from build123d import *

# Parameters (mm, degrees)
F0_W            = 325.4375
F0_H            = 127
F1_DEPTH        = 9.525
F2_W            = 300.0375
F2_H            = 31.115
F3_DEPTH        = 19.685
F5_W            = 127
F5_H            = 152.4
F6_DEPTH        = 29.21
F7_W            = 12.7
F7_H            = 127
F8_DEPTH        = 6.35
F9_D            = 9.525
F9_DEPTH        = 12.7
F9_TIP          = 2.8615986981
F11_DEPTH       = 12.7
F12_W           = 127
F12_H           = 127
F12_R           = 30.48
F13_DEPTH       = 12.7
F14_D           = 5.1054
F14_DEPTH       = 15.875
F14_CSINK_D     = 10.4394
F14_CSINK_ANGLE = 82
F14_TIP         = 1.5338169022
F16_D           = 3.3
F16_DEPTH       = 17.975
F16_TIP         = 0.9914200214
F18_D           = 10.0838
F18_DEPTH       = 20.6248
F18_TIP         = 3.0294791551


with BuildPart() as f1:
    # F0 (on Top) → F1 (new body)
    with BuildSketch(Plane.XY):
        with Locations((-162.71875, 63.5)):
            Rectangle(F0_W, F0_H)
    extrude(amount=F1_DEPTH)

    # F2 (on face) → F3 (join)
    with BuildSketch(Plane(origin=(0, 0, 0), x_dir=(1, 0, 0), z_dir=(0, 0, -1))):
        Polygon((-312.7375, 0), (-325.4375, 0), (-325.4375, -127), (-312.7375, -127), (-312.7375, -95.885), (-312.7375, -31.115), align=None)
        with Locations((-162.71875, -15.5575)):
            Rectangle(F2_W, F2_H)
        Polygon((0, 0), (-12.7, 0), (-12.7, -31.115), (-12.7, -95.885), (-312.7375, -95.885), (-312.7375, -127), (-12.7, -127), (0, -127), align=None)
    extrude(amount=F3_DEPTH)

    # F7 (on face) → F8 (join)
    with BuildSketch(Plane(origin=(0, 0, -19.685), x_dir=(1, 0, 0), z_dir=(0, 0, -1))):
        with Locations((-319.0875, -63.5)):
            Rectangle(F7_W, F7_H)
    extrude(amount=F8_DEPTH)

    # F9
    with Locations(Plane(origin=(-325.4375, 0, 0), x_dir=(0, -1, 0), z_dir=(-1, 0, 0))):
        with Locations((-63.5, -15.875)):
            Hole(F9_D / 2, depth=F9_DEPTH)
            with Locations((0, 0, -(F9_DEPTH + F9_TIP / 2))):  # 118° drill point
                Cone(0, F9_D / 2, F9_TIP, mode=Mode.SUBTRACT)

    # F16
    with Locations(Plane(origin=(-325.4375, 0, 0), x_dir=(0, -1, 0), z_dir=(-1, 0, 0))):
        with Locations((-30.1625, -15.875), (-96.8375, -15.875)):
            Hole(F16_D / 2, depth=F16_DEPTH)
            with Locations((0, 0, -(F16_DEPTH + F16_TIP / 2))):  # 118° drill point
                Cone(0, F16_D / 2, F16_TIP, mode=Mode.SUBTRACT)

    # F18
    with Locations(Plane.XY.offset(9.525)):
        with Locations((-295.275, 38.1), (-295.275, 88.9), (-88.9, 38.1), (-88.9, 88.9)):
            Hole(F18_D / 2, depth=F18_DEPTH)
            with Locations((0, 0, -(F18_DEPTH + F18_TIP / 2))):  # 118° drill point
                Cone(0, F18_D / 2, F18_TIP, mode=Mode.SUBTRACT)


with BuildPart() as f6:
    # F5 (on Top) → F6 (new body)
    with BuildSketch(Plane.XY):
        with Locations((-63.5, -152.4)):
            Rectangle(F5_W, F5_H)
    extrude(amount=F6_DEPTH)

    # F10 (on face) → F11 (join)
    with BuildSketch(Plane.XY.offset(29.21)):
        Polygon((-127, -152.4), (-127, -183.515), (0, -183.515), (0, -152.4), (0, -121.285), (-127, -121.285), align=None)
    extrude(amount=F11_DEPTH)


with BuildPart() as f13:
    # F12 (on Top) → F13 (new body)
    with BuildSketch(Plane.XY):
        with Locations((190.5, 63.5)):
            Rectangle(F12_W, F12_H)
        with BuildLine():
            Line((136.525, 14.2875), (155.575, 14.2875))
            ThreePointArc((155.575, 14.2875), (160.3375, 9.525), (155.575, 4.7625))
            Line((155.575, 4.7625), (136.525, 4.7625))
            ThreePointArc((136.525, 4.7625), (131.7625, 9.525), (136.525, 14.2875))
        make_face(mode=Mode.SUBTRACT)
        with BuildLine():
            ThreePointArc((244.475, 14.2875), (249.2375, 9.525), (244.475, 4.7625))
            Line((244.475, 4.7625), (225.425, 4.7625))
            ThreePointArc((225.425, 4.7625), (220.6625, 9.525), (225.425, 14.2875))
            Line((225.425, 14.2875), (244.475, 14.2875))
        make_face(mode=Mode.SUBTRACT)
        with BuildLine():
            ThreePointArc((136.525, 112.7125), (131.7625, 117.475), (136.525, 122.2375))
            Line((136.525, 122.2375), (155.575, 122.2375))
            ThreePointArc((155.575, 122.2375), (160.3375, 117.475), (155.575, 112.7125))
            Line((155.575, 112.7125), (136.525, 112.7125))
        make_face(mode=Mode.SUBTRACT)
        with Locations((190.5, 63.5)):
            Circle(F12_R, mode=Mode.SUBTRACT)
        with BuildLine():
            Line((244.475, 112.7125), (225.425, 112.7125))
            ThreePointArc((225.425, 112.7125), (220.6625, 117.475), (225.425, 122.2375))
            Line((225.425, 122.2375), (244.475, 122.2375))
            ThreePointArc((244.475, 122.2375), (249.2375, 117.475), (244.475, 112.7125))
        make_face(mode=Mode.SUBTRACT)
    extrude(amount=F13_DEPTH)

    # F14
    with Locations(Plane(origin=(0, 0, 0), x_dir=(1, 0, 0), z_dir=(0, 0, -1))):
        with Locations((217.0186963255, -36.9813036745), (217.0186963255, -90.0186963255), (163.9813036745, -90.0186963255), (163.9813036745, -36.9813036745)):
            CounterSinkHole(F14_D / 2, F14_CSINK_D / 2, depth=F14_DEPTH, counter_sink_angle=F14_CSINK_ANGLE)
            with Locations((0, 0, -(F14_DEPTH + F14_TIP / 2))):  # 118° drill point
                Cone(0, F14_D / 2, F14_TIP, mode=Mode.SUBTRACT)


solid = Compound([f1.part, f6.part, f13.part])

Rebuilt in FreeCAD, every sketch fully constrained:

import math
import FreeCAD as App
import Part
import Sketcher
from FreeCAD import Vector
Q = App.Units.Quantity


def add_polygon(sketch, points):
    """Adds a closed chain of lines whose ends are joined by coincident constraints."""
    first, n = sketch.GeometryCount, len(points)
    for a, b in zip(points, points[1:] + points[:1]):
        sketch.addGeometry(Part.LineSegment(App.Vector(*a, 0), App.Vector(*b, 0)), False)
    for i in range(n):
        sketch.addConstraint(Sketcher.Constraint("Coincident", first + i, 2, first + (i + 1) % n, 1))

doc = App.newDocument("Part")
body = doc.addObject("PartDesign::Body", "Body")

sketch1 = body.newObject("Sketcher::SketchObject", "Sketch")
sketch1.AttachmentSupport = (doc.getObject("XY_Plane"), [""])
sketch1.MapMode = "FlatFace"
add_polygon(sketch1, [(-325, 127), (-325, 0), (0, 0), (0, 127)])
sketch1.addConstraint([
    Sketcher.Constraint("Vertical", 0),
    Sketcher.Constraint("Horizontal", 1),
    Sketcher.Constraint("Vertical", 2),
    Sketcher.Constraint("Horizontal", 3),
    Sketcher.Constraint("Coincident", 1, 2, -1, 1),
    Sketcher.Constraint("DistanceY", 0, 2, 0, 1, Q("5 in")),
    Sketcher.Constraint("DistanceX", 1, 1, 1, 2, Q("12.8125 in")),
])
pad1 = body.newObject("PartDesign::Pad", "Pad")
pad1.Profile = sketch1
pad1.Length = Q("0.375 in")

sketch2 = body.newObject("Sketcher::SketchObject", "Sketch001")
sketch2.AttachmentSupport = (doc.getObject("XY_Plane"), [""])
sketch2.MapMode = "FlatFace"
add_polygon(sketch2, [(-325, 0), (-325, 127), (0, 127), (0, 0)])
add_polygon(sketch2, [(-313, 96), (-313, 31), (-13, 31), (-13, 96)])
sketch2.addConstraint([
    Sketcher.Constraint("Vertical", 0),
    Sketcher.Constraint("Horizontal", 1),
    Sketcher.Constraint("Vertical", 2),
    Sketcher.Constraint("Horizontal", 3),
    Sketcher.Constraint("Vertical", 4),
    Sketcher.Constraint("Horizontal", 5),
    Sketcher.Constraint("Vertical", 6),
    Sketcher.Constraint("Horizontal", 7),
    Sketcher.Constraint("Coincident", 2, 2, -1, 1),
    Sketcher.Constraint("DistanceY", 0, 1, 0, 2, Q("5 in")),
    Sketcher.Constraint("DistanceY", 4, 2, 4, 1, Q("2.55 in")),
    Sketcher.Constraint("DistanceX", 5, 2, -1, 1, Q("0.5 in")),
    Sketcher.Constraint("DistanceX", 3, 2, 4, 2, Q("0.5 in")),
    Sketcher.Constraint("DistanceX", 1, 1, 1, 2, Q("12.8125 in")),
    Sketcher.Constraint("DistanceY", -1, 1, 4, 2, Q("1.225 in")),
])
pad2 = body.newObject("PartDesign::Pad", "Pad001")
pad2.Profile = sketch2
pad2.Length = Q("0.775 in")
pad2.Reversed = True

sketch3 = body.newObject("Sketcher::SketchObject", "Sketch002")
sketch3.AttachmentSupport = (doc.getObject("XY_Plane"), [""])
sketch3.MapMode = "FlatFace"
sketch3.AttachmentOffset = App.Placement(Vector(0, 0, -0.775 * 25.4), App.Rotation())
add_polygon(sketch3, [(-325, 0), (-325, 127), (-313, 127), (-313, 0)])
sketch3.addConstraint([
    Sketcher.Constraint("Vertical", 0),
    Sketcher.Constraint("Horizontal", 1),
    Sketcher.Constraint("Vertical", 2),
    Sketcher.Constraint("Horizontal", 3),
    Sketcher.Constraint("PointOnObject", 2, 2, -1),
    Sketcher.Constraint("DistanceY", 0, 1, 0, 2, Q("5 in")),
    Sketcher.Constraint("DistanceX", 1, 1, 1, 2, Q("0.5 in")),
    Sketcher.Constraint("DistanceX", 0, 2, -1, 1, Q("12.8125 in")),
])
pad3 = body.newObject("PartDesign::Pad", "Pad002")
pad3.Profile = sketch3
pad3.Length = Q("0.25 in")
pad3.Reversed = True

sketch4 = body.newObject("Sketcher::SketchObject", "Sketch003")
sketch4.AttachmentSupport = (doc.getObject("YZ_Plane"), [""])
sketch4.MapMode = "FlatFace"
sketch4.AttachmentOffset = App.Placement(Vector(0, 0, -12.8125 * 25.4), App.Rotation())
sketch4.addGeometry(Part.Circle(Vector(63.5, -15.9, 0), Vector(0, 0, 1), 4.8), False)
sketch4.addConstraint([
    Sketcher.Constraint("Diameter", 0, Q("0.375 in")),
    Sketcher.Constraint("DistanceX", -1, 1, 0, 3, Q("2.5 in")),
    Sketcher.Constraint("DistanceY", 0, 3, -1, 1, Q("0.625 in")),
])
doc.recompute()
hole = body.newObject("PartDesign::Hole", "Hole")
hole.Profile = sketch4
hole.ThreadType = "None"
hole.Diameter = Q("0.375 in")
hole.DepthType = "Dimension"
hole.Depth = Q("0.5 in")
hole.DrillPoint = "Angled"
hole.DrillPointAngle = 118
hole.Reversed = True

sketch5 = body.newObject("Sketcher::SketchObject", "Sketch004")
sketch5.AttachmentSupport = (doc.getObject("YZ_Plane"), [""])
sketch5.MapMode = "FlatFace"
sketch5.AttachmentOffset = App.Placement(Vector(0, 0, -12.8125 * 25.4), App.Rotation())
sketch5.addGeometry([
    Part.Circle(Vector(30.2, -15.9, 0), Vector(0, 0, 1), 1.6),
    Part.Circle(Vector(96.8, -15.9, 0), Vector(0, 0, 1), 1.6),
], False)
sketch5.addConstraint([
    Sketcher.Constraint("Equal", 0, 1),
    Sketcher.Constraint("Horizontal", 0, 3, 1, 3),
    Sketcher.Constraint("Diameter", 0, Q("3.3 mm")),
    Sketcher.Constraint("DistanceX", -1, 1, 0, 3, Q("1.1875 in")),
    Sketcher.Constraint("DistanceY", 0, 3, -1, 1, Q("0.625 in")),
    Sketcher.Constraint("DistanceX", -1, 1, 1, 3, Q("3.8125 in")),
])
doc.recompute()
hole2 = body.newObject("PartDesign::Hole", "Hole001")
hole2.Profile = sketch5
hole2.ThreadType = "None"
hole2.Diameter = 3.3
hole2.DepthType = "Dimension"
hole2.Depth = 17.975
hole2.DrillPoint = "Angled"
hole2.DrillPointAngle = 118
hole2.Reversed = True

sketch6 = body.newObject("Sketcher::SketchObject", "Sketch005")
sketch6.AttachmentSupport = (doc.getObject("XY_Plane"), [""])
sketch6.MapMode = "FlatFace"
sketch6.AttachmentOffset = App.Placement(Vector(0, 0, 0.375 * 25.4), App.Rotation())
sketch6.addGeometry([
    Part.Circle(Vector(-295, 38, 0), Vector(0, 0, 1), 5),
    Part.Circle(Vector(-295, 89, 0), Vector(0, 0, 1), 5),
    Part.Circle(Vector(-89, 38, 0), Vector(0, 0, 1), 5),
    Part.Circle(Vector(-89, 89, 0), Vector(0, 0, 1), 5),
], False)
sketch6.addConstraint([
    Sketcher.Constraint("Equal", 0, 1),
    Sketcher.Constraint("Equal", 1, 2),
    Sketcher.Constraint("Equal", 2, 3),
    Sketcher.Constraint("Horizontal", 0, 3, 2, 3),
    Sketcher.Constraint("Horizontal", 1, 3, 3, 3),
    Sketcher.Constraint("Vertical", 0, 3, 1, 3),
    Sketcher.Constraint("Vertical", 2, 3, 3, 3),
    Sketcher.Constraint("Diameter", 0, Q("0.397 in")),
    Sketcher.Constraint("DistanceY", 0, 3, 1, 3, Q("2 in")),
    Sketcher.Constraint("DistanceY", -1, 1, 0, 3, Q("1.5 in")),
    Sketcher.Constraint("DistanceX", 2, 3, -1, 1, Q("3.5 in")),
    Sketcher.Constraint("DistanceX", 0, 3, -1, 1, Q("11.625 in")),
])
doc.recompute()
hole3 = body.newObject("PartDesign::Hole", "Hole002")
hole3.Profile = sketch6
hole3.ThreadType = "None"
hole3.Diameter = Q("0.397 in")
hole3.DepthType = "Dimension"
hole3.Depth = Q("0.812 in")
hole3.DrillPoint = "Angled"
hole3.DrillPointAngle = 118
body2 = doc.addObject("PartDesign::Body", "Body001")

sketch7 = body2.newObject("Sketcher::SketchObject", "Sketch006")
sketch7.AttachmentSupport = (doc.getObject("XY_Plane001"), [""])
sketch7.MapMode = "FlatFace"
add_polygon(sketch7, [(-127, -76), (-127, -229), (0, -229), (0, -76)])
sketch7.addConstraint([
    Sketcher.Constraint("Vertical", 0),
    Sketcher.Constraint("Horizontal", 1),
    Sketcher.Constraint("Vertical", 2),
    Sketcher.Constraint("Horizontal", 3),
    Sketcher.Constraint("PointOnObject", 1, 2, -2),
    Sketcher.Constraint("DistanceX", 1, 1, 1, 2, Q("5 in")),
    Sketcher.Constraint("DistanceY", 0, 2, 0, 1, Q("6 in")),
    Sketcher.Constraint("DistanceY", 0, 2, -1, 1, Q("9 in")),
])
pad4 = body2.newObject("PartDesign::Pad", "Pad003")
pad4.Profile = sketch7
pad4.Length = Q("1.15 in")

sketch8 = body2.newObject("Sketcher::SketchObject", "Sketch007")
sketch8.AttachmentSupport = (doc.getObject("XY_Plane001"), [""])
sketch8.MapMode = "FlatFace"
sketch8.AttachmentOffset = App.Placement(Vector(0, 0, 1.15 * 25.4), App.Rotation())
add_polygon(sketch8, [(-127, -184), (0, -184), (0, -121), (-127, -121)])
sketch8.addConstraint([
    Sketcher.Constraint("Horizontal", 0),
    Sketcher.Constraint("Vertical", 1),
    Sketcher.Constraint("Horizontal", 2),
    Sketcher.Constraint("Vertical", 3),
    Sketcher.Constraint("PointOnObject", 0, 2, -2),
    Sketcher.Constraint("DistanceX", 0, 1, 0, 2, Q("5 in")),
    Sketcher.Constraint("DistanceY", 1, 1, 1, 2, Q("2.45 in")),
    Sketcher.Constraint("DistanceY", 0, 2, -1, 1, Q("7.225 in")),
])
pad5 = body2.newObject("PartDesign::Pad", "Pad004")
pad5.Profile = sketch8
pad5.Length = Q("0.5 in")
body3 = doc.addObject("PartDesign::Body", "Body002")

sketch9 = body3.newObject("Sketcher::SketchObject", "Sketch008")
sketch9.AttachmentSupport = (doc.getObject("XY_Plane002"), [""])
sketch9.MapMode = "FlatFace"
add_polygon(sketch9, [(127, 127), (127, 0), (254, 0), (254, 127)])
sketch9.addGeometry(Part.ArcOfCircle(Part.Circle(Vector(136.5, 9.5, 0), Vector(0, 0, 1), 4.8), math.radians(90), math.radians(270)), False)
sketch9.addGeometry(Part.LineSegment(Vector(136.5, 14.3, 0), Vector(155.6, 14.3, 0)), False)
sketch9.addGeometry(Part.ArcOfCircle(Part.Circle(Vector(155.6, 9.5, 0), Vector(0, 0, 1), 4.8), math.radians(-90), math.radians(90)), False)
sketch9.addGeometry(Part.LineSegment(Vector(155.6, 4.8, 0), Vector(136.5, 4.8, 0)), False)
sketch9.addGeometry(Part.LineSegment(Vector(225.4, 14.3, 0), Vector(244.5, 14.3, 0)), False)
sketch9.addGeometry(Part.ArcOfCircle(Part.Circle(Vector(244.5, 9.5, 0), Vector(0, 0, 1), 4.8), math.radians(-90), math.radians(90)), False)
sketch9.addGeometry(Part.LineSegment(Vector(244.5, 4.8, 0), Vector(225.4, 4.8, 0)), False)
sketch9.addGeometry(Part.ArcOfCircle(Part.Circle(Vector(225.4, 9.5, 0), Vector(0, 0, 1), 4.8), math.radians(90), math.radians(270)), False)
sketch9.addGeometry(Part.LineSegment(Vector(155.6, 112.7, 0), Vector(136.5, 112.7, 0)), False)
sketch9.addGeometry(Part.ArcOfCircle(Part.Circle(Vector(136.5, 117.5, 0), Vector(0, 0, 1), 4.8), math.radians(90), math.radians(270)), False)
sketch9.addGeometry(Part.LineSegment(Vector(136.5, 122.2, 0), Vector(155.6, 122.2, 0)), False)
sketch9.addGeometry(Part.ArcOfCircle(Part.Circle(Vector(155.6, 117.5, 0), Vector(0, 0, 1), 4.8), math.radians(-90), math.radians(90)), False)
sketch9.addGeometry(Part.Circle(Vector(190.5, 63.5, 0), Vector(0, 0, 1), 30.5), False)
sketch9.addGeometry(Part.ArcOfCircle(Part.Circle(Vector(244.5, 117.5, 0), Vector(0, 0, 1), 4.8), math.radians(-90), math.radians(90)), False)
sketch9.addGeometry(Part.LineSegment(Vector(244.5, 112.7, 0), Vector(225.4, 112.7, 0)), False)
sketch9.addGeometry(Part.ArcOfCircle(Part.Circle(Vector(225.4, 117.5, 0), Vector(0, 0, 1), 4.8), math.radians(90), math.radians(270)), False)
sketch9.addGeometry(Part.LineSegment(Vector(225.4, 122.2, 0), Vector(244.5, 122.2, 0)), False)
sketch9.addConstraint([
    Sketcher.Constraint("Tangent", 4, 1, 5, 1),
    Sketcher.Constraint("Tangent", 5, 2, 6, 2),
    Sketcher.Constraint("Tangent", 6, 1, 7, 1),
    Sketcher.Constraint("Tangent", 7, 2, 4, 2),
    Sketcher.Constraint("Tangent", 8, 2, 9, 2),
    Sketcher.Constraint("Tangent", 9, 1, 10, 1),
    Sketcher.Constraint("Tangent", 10, 2, 11, 2),
    Sketcher.Constraint("Tangent", 11, 1, 8, 1),
    Sketcher.Constraint("Tangent", 12, 2, 13, 2),
    Sketcher.Constraint("Tangent", 13, 1, 14, 1),
    Sketcher.Constraint("Tangent", 14, 2, 15, 2),
    Sketcher.Constraint("Tangent", 15, 1, 12, 1),
    Sketcher.Constraint("Tangent", 17, 1, 18, 1),
    Sketcher.Constraint("Tangent", 18, 2, 19, 2),
    Sketcher.Constraint("Tangent", 19, 1, 20, 1),
    Sketcher.Constraint("Tangent", 20, 2, 17, 2),
    Sketcher.Constraint("Vertical", 0),
    Sketcher.Constraint("Horizontal", 1),
    Sketcher.Constraint("Vertical", 2),
    Sketcher.Constraint("Horizontal", 3),
    Sketcher.Constraint("Horizontal", 5),
    Sketcher.Constraint("Horizontal", 7),
    Sketcher.Constraint("Horizontal", 8),
    Sketcher.Constraint("Horizontal", 10),
    Sketcher.Constraint("Horizontal", 12),
    Sketcher.Constraint("Horizontal", 14),
    Sketcher.Constraint("Horizontal", 18),
    Sketcher.Constraint("Horizontal", 20),
    Sketcher.Constraint("Equal", 6, 9),
    Sketcher.Constraint("Equal", 11, 13),
    Sketcher.Constraint("Equal", 15, 17),
    Sketcher.Constraint("PointOnObject", 0, 2, -1),
    Sketcher.Constraint("Horizontal", 6, 3, 9, 3),
    Sketcher.Constraint("Horizontal", 15, 3, 17, 3),
    Sketcher.Constraint("Vertical", 4, 3, 13, 3),
    Sketcher.Constraint("Vertical", 6, 3, 15, 3),
    Sketcher.Constraint("Vertical", 9, 3, 17, 3),
    Sketcher.Constraint("Vertical", 11, 3, 19, 3),
    Sketcher.Constraint("Equal", 7, 8),
    Sketcher.Constraint("Equal", 3, 0),
    Sketcher.Constraint("Diameter", 16, Q("2.4 in")),
    Sketcher.Constraint("DistanceX", 1, 1, 1, 2, Q("5 in")),
    Sketcher.Constraint("DistanceX", -1, 1, 0, 2, Q("5 in")),
    Sketcher.Constraint("Radius", 4, Q("0.1875 in")),
    Sketcher.Constraint("DistanceX", 5, 1, 5, 2, Q("0.75 in")),
    Sketcher.Constraint("DistanceX", -1, 1, 16, 3, Q("7.5 in")),
    Sketcher.Constraint("DistanceY", -1, 1, 16, 3, Q("2.5 in")),
    Sketcher.Constraint("DistanceX", 6, 3, 9, 3, Q("3.5 in")),
    Sketcher.Constraint("DistanceY", 4, 3, 13, 3, Q("4.25 in")),
    Sketcher.Constraint("DistanceX", -1, 1, 4, 3, Q("5.375 in")),
    Sketcher.Constraint("DistanceY", -1, 1, 4, 3, Q("0.375 in")),
])
pad6 = body3.newObject("PartDesign::Pad", "Pad005")
pad6.Profile = sketch9
pad6.Length = Q("0.5 in")

sketch10 = body3.newObject("Sketcher::SketchObject", "Sketch009")
sketch10.AttachmentSupport = (doc.getObject("XY_Plane002"), [""])
sketch10.MapMode = "FlatFace"
sketch10.addGeometry([
    Part.Circle(Vector(217, 37, 0), Vector(0, 0, 1), 2.6),
    Part.Circle(Vector(217, 90, 0), Vector(0, 0, 1), 2.6),
    Part.Circle(Vector(164, 90, 0), Vector(0, 0, 1), 2.6),
    Part.Circle(Vector(164, 37, 0), Vector(0, 0, 1), 2.6),
], False)
sketch10.addConstraint([
    Sketcher.Constraint("Equal", 0, 1),
    Sketcher.Constraint("Equal", 1, 2),
    Sketcher.Constraint("Equal", 2, 3),
    Sketcher.Constraint("Horizontal", 1, 3, 2, 3),
    Sketcher.Constraint("Horizontal", 0, 3, 3, 3),
    Sketcher.Constraint("Vertical", 0, 3, 1, 3),
    Sketcher.Constraint("Vertical", 2, 3, 3, 3),
    Sketcher.Constraint("Diameter", 0, Q("0.201 in")),
    Sketcher.Constraint("DistanceX", -1, 1, 0, 3, Q("217.018696 mm")),
    Sketcher.Constraint("DistanceY", -1, 1, 0, 3, Q("36.981304 mm")),
    Sketcher.Constraint("DistanceY", -1, 1, 1, 3, Q("90.018696 mm")),
    Sketcher.Constraint("DistanceX", -1, 1, 2, 3, Q("163.981304 mm")),
])
doc.recompute()
hole4 = body3.newObject("PartDesign::Hole", "Hole003")
hole4.Profile = sketch10
hole4.ThreadType = "None"
hole4.Diameter = Q("0.201 in")
hole4.DepthType = "Dimension"
hole4.Depth = Q("0.625 in")
hole4.DrillPoint = "Angled"
hole4.DrillPointAngle = 118
hole4.HoleCutType = "Countersink"
hole4.HoleCutDiameter = Q("0.411 in")
hole4.HoleCutCountersinkAngle = 82
hole4.Reversed = True

doc.recompute()
